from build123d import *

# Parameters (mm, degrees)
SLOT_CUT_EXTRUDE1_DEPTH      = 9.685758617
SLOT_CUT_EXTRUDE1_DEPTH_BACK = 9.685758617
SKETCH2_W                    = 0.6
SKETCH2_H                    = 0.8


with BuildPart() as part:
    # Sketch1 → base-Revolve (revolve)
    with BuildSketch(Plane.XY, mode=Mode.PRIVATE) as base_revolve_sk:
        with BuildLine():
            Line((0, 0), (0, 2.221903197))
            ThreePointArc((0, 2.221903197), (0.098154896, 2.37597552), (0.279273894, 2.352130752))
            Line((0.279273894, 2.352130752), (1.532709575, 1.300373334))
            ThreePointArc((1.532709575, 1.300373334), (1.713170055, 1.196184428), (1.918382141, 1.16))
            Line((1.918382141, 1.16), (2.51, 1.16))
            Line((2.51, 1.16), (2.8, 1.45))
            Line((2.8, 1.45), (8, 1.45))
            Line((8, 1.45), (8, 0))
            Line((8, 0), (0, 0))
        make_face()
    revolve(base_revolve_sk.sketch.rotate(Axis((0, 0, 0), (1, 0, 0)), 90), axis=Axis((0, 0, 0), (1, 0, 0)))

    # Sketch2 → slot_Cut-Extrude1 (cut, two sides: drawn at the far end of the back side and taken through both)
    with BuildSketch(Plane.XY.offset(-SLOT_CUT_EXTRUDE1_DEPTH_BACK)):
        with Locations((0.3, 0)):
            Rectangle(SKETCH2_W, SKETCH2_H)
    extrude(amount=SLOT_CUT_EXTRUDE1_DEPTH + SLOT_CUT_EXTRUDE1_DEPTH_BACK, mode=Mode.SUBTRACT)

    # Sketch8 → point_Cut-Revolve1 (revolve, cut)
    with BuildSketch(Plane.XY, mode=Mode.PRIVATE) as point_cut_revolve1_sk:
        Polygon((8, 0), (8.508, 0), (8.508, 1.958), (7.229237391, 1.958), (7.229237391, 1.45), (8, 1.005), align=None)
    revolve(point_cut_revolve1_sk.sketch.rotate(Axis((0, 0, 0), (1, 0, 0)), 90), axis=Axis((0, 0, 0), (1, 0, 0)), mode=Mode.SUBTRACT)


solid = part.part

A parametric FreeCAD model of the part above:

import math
import FreeCAD as App
import Part
import Sketcher

V = App.Vector
Q = App.Units.Quantity

doc = App.newDocument("Part")
body = doc.addObject("PartDesign::Body", "Body")

sketch1 = body.newObject("Sketcher::SketchObject", "Sketch")
sketch1.AttachmentSupport = (doc.getObject("XY_Plane"), [""])
sketch1.MapMode = "FlatFace"
sketch1.addGeometry(Part.LineSegment(V(0, 2.22, 0), V(0, 0, 0)), False)
sketch1.addGeometry(Part.LineSegment(V(0, 0, 0), V(8, 0, 0)), False)
sketch1.addGeometry(Part.LineSegment(V(8, 0, 0), V(8, 1.45, 0)), False)
sketch1.addGeometry(Part.LineSegment(V(8, 1.45, 0), V(2.8, 1.45, 0)), False)
sketch1.addGeometry(Part.LineSegment(V(2.8, 1.45, 0), V(2.51, 1.16, 0)), False)
sketch1.addGeometry(Part.LineSegment(V(2.51, 1.16, 0), V(1.92, 1.16, 0)), False)
sketch1.addGeometry(Part.ArcOfCircle(Part.Circle(V(1.92, 1.76, 0), V(0, 0, 1), 0.6), math.radians(-130), math.radians(-90)), False)
sketch1.addGeometry(Part.LineSegment(V(1.53, 1.3, 0), V(0.28, 2.35, 0)), False)
sketch1.addGeometry(Part.ArcOfCircle(Part.Circle(V(0.17, 2.22, 0), V(0, 0, 1), 0.17), math.radians(50), math.radians(180)), False)
sketch1.addConstraint(Sketcher.Constraint("Coincident", 0, 2, 1, 1))
sketch1.addConstraint(Sketcher.Constraint("Coincident", 1, 2, 2, 1))
sketch1.addConstraint(Sketcher.Constraint("Coincident", 2, 2, 3, 1))
sketch1.addConstraint(Sketcher.Constraint("Coincident", 3, 2, 4, 1))
sketch1.addConstraint(Sketcher.Constraint("Coincident", 4, 2, 5, 1))
sketch1.addConstraint(Sketcher.Constraint("Tangent", 5, 2, 6, 2))
sketch1.addConstraint(Sketcher.Constraint("Tangent", 6, 1, 7, 1))
sketch1.addConstraint(Sketcher.Constraint("Tangent", 7, 2, 8, 1))
sketch1.addConstraint(Sketcher.Constraint("Tangent", 8, 2, 0, 1))
sketch1.addConstraint(Sketcher.Constraint("Vertical", 0))
sketch1.addConstraint(Sketcher.Constraint("Horizontal", 1))
sketch1.addConstraint(Sketcher.Constraint("Vertical", 2))
sketch1.addConstraint(Sketcher.Constraint("Horizontal", 3))
sketch1.addConstraint(Sketcher.Constraint("Horizontal", 5))
sketch1.addConstraint(Sketcher.Constraint("Coincident", 0, 2, -1, 1))
sketch1.addConstraint(Sketcher.Constraint("Radius", 6, Q("0.6 mm")))
sketch1.addConstraint(Sketcher.Constraint("DistanceX", 1, 1, 1, 2, Q("8 mm")))
sketch1.addConstraint(Sketcher.Constraint("Angle", 4, Q("-135 deg")))
sketch1.addConstraint(Sketcher.Constraint("Angle", 7, Q("140 deg")))
sketch1.addConstraint(Sketcher.Constraint("Radius", 8, Q("0.17 mm")))
sketch1.addConstraint(Sketcher.Constraint("DistanceX", 3, 2, 3, 1, Q("5.2 mm")))
sketch1.addConstraint(Sketcher.Constraint("DistanceY", 2, 1, 2, 2, Q("1.45 mm")))
sketch1.addConstraint(Sketcher.Constraint("DistanceY", -1, 1, 6, 3, Q("1.76 mm")))
sketch1.addConstraint(Sketcher.Constraint("DistanceX", 5, 2, 5, 1, Q("0.591618 mm")))
revolution = body.newObject("PartDesign::Revolution", "Revolution")
revolution.Profile = sketch1
revolution.ReferenceAxis = (sketch1, ["H_Axis"])
revolution.Angle = 360

sketch2 = body.newObject("Sketcher::SketchObject", "Sketch001")
sketch2.AttachmentSupport = (doc.getObject("XY_Plane"), [""])
sketch2.MapMode = "FlatFace"
sketch2.addGeometry(Part.LineSegment(V(0, 0.4, 0), V(0, -0.4, 0)), False)
sketch2.addGeometry(Part.LineSegment(V(0, -0.4, 0), V(0.6, -0.4, 0)), False)
sketch2.addGeometry(Part.LineSegment(V(0.6, -0.4, 0), V(0.6, 0.4, 0)), False)
sketch2.addGeometry(Part.LineSegment(V(0.6, 0.4, 0), V(0, 0.4, 0)), False)
sketch2.addConstraint(Sketcher.Constraint("Coincident", 0, 2, 1, 1))
sketch2.addConstraint(Sketcher.Constraint("Coincident", 1, 2, 2, 1))
sketch2.addConstraint(Sketcher.Constraint("Coincident", 2, 2, 3, 1))
sketch2.addConstraint(Sketcher.Constraint("Coincident", 3, 2, 0, 1))
sketch2.addConstraint(Sketcher.Constraint("Vertical", 0))
sketch2.addConstraint(Sketcher.Constraint("Horizontal", 1))
sketch2.addConstraint(Sketcher.Constraint("Vertical", 2))
sketch2.addConstraint(Sketcher.Constraint("Horizontal", 3))
sketch2.addConstraint(Sketcher.Constraint("Symmetric", 0, 2, 3, 2, -1, 1))
sketch2.addConstraint(Sketcher.Constraint("DistanceX", 1, 1, 1, 2, Q("0.6 mm")))
sketch2.addConstraint(Sketcher.Constraint("DistanceY", 0, 2, 0, 1, Q("0.8 mm")))
pocket1 = body.newObject("PartDesign::Pocket", "Pocket")
pocket1.Profile = sketch2
pocket1.Type = "ThroughAll"
pocket1.Midplane = True

sketch3 = body.newObject("Sketcher::SketchObject", "Sketch002")
sketch3.AttachmentSupport = (doc.getObject("XY_Plane"), [""])
sketch3.MapMode = "FlatFace"
sketch3.addGeometry(Part.LineSegment(V(8, 0, 0), V(8.5, 0, 0)), False)
sketch3.addGeometry(Part.LineSegment(V(8.5, 0, 0), V(8.5, 2, 0)), False)
sketch3.addGeometry(Part.LineSegment(V(8.5, 2, 0), V(7.2, 2, 0)), False)
sketch3.addGeometry(Part.LineSegment(V(7.2, 2, 0), V(7.2, 1.4, 0)), False)
sketch3.addGeometry(Part.LineSegment(V(7.2, 1.4, 0), V(8, 1, 0)), False)
sketch3.addGeometry(Part.LineSegment(V(8, 1, 0), V(8, 0, 0)), False)
sketch3.addConstraint(Sketcher.Constraint("Coincident", 0, 2, 1, 1))
sketch3.addConstraint(Sketcher.Constraint("Coincident", 1, 2, 2, 1))
sketch3.addConstraint(Sketcher.Constraint("Coincident", 2, 2, 3, 1))
sketch3.addConstraint(Sketcher.Constraint("Coincident", 3, 2, 4, 1))
sketch3.addConstraint(Sketcher.Constraint("Coincident", 4, 2, 5, 1))
sketch3.addConstraint(Sketcher.Constraint("Coincident", 5, 2, 0, 1))
sketch3.addConstraint(Sketcher.Constraint("Horizontal", 0))
sketch3.addConstraint(Sketcher.Constraint("Vertical", 1))
sketch3.addConstraint(Sketcher.Constraint("Horizontal", 2))
sketch3.addConstraint(Sketcher.Constraint("Vertical", 3))
sketch3.addConstraint(Sketcher.Constraint("Vertical", 5))
sketch3.addConstraint(Sketcher.Constraint("PointOnObject", 0, 2, -1))
sketch3.addConstraint(Sketcher.Constraint("Equal", 0, 3))
sketch3.addConstraint(Sketcher.Constraint("Angle", 4, Q("-30 deg")))
sketch3.addConstraint(Sketcher.Constraint("DistanceX", -1, 1, 4, 2, Q("8 mm")))
sketch3.addConstraint(Sketcher.Constraint("Distance", 4, Q("0.89 mm")))
sketch3.addConstraint(Sketcher.Constraint("DistanceX", 0, 1, 0, 2, Q("0.508 mm")))
sketch3.addConstraint(Sketcher.Constraint("DistanceY", 1, 1, 1, 2, Q("1.958 mm")))
groove = body.newObject("PartDesign::Groove", "Groove")
groove.Profile = sketch3
groove.ReferenceAxis = (sketch3, ["H_Axis"])
groove.Angle = 360

doc.recompute()
